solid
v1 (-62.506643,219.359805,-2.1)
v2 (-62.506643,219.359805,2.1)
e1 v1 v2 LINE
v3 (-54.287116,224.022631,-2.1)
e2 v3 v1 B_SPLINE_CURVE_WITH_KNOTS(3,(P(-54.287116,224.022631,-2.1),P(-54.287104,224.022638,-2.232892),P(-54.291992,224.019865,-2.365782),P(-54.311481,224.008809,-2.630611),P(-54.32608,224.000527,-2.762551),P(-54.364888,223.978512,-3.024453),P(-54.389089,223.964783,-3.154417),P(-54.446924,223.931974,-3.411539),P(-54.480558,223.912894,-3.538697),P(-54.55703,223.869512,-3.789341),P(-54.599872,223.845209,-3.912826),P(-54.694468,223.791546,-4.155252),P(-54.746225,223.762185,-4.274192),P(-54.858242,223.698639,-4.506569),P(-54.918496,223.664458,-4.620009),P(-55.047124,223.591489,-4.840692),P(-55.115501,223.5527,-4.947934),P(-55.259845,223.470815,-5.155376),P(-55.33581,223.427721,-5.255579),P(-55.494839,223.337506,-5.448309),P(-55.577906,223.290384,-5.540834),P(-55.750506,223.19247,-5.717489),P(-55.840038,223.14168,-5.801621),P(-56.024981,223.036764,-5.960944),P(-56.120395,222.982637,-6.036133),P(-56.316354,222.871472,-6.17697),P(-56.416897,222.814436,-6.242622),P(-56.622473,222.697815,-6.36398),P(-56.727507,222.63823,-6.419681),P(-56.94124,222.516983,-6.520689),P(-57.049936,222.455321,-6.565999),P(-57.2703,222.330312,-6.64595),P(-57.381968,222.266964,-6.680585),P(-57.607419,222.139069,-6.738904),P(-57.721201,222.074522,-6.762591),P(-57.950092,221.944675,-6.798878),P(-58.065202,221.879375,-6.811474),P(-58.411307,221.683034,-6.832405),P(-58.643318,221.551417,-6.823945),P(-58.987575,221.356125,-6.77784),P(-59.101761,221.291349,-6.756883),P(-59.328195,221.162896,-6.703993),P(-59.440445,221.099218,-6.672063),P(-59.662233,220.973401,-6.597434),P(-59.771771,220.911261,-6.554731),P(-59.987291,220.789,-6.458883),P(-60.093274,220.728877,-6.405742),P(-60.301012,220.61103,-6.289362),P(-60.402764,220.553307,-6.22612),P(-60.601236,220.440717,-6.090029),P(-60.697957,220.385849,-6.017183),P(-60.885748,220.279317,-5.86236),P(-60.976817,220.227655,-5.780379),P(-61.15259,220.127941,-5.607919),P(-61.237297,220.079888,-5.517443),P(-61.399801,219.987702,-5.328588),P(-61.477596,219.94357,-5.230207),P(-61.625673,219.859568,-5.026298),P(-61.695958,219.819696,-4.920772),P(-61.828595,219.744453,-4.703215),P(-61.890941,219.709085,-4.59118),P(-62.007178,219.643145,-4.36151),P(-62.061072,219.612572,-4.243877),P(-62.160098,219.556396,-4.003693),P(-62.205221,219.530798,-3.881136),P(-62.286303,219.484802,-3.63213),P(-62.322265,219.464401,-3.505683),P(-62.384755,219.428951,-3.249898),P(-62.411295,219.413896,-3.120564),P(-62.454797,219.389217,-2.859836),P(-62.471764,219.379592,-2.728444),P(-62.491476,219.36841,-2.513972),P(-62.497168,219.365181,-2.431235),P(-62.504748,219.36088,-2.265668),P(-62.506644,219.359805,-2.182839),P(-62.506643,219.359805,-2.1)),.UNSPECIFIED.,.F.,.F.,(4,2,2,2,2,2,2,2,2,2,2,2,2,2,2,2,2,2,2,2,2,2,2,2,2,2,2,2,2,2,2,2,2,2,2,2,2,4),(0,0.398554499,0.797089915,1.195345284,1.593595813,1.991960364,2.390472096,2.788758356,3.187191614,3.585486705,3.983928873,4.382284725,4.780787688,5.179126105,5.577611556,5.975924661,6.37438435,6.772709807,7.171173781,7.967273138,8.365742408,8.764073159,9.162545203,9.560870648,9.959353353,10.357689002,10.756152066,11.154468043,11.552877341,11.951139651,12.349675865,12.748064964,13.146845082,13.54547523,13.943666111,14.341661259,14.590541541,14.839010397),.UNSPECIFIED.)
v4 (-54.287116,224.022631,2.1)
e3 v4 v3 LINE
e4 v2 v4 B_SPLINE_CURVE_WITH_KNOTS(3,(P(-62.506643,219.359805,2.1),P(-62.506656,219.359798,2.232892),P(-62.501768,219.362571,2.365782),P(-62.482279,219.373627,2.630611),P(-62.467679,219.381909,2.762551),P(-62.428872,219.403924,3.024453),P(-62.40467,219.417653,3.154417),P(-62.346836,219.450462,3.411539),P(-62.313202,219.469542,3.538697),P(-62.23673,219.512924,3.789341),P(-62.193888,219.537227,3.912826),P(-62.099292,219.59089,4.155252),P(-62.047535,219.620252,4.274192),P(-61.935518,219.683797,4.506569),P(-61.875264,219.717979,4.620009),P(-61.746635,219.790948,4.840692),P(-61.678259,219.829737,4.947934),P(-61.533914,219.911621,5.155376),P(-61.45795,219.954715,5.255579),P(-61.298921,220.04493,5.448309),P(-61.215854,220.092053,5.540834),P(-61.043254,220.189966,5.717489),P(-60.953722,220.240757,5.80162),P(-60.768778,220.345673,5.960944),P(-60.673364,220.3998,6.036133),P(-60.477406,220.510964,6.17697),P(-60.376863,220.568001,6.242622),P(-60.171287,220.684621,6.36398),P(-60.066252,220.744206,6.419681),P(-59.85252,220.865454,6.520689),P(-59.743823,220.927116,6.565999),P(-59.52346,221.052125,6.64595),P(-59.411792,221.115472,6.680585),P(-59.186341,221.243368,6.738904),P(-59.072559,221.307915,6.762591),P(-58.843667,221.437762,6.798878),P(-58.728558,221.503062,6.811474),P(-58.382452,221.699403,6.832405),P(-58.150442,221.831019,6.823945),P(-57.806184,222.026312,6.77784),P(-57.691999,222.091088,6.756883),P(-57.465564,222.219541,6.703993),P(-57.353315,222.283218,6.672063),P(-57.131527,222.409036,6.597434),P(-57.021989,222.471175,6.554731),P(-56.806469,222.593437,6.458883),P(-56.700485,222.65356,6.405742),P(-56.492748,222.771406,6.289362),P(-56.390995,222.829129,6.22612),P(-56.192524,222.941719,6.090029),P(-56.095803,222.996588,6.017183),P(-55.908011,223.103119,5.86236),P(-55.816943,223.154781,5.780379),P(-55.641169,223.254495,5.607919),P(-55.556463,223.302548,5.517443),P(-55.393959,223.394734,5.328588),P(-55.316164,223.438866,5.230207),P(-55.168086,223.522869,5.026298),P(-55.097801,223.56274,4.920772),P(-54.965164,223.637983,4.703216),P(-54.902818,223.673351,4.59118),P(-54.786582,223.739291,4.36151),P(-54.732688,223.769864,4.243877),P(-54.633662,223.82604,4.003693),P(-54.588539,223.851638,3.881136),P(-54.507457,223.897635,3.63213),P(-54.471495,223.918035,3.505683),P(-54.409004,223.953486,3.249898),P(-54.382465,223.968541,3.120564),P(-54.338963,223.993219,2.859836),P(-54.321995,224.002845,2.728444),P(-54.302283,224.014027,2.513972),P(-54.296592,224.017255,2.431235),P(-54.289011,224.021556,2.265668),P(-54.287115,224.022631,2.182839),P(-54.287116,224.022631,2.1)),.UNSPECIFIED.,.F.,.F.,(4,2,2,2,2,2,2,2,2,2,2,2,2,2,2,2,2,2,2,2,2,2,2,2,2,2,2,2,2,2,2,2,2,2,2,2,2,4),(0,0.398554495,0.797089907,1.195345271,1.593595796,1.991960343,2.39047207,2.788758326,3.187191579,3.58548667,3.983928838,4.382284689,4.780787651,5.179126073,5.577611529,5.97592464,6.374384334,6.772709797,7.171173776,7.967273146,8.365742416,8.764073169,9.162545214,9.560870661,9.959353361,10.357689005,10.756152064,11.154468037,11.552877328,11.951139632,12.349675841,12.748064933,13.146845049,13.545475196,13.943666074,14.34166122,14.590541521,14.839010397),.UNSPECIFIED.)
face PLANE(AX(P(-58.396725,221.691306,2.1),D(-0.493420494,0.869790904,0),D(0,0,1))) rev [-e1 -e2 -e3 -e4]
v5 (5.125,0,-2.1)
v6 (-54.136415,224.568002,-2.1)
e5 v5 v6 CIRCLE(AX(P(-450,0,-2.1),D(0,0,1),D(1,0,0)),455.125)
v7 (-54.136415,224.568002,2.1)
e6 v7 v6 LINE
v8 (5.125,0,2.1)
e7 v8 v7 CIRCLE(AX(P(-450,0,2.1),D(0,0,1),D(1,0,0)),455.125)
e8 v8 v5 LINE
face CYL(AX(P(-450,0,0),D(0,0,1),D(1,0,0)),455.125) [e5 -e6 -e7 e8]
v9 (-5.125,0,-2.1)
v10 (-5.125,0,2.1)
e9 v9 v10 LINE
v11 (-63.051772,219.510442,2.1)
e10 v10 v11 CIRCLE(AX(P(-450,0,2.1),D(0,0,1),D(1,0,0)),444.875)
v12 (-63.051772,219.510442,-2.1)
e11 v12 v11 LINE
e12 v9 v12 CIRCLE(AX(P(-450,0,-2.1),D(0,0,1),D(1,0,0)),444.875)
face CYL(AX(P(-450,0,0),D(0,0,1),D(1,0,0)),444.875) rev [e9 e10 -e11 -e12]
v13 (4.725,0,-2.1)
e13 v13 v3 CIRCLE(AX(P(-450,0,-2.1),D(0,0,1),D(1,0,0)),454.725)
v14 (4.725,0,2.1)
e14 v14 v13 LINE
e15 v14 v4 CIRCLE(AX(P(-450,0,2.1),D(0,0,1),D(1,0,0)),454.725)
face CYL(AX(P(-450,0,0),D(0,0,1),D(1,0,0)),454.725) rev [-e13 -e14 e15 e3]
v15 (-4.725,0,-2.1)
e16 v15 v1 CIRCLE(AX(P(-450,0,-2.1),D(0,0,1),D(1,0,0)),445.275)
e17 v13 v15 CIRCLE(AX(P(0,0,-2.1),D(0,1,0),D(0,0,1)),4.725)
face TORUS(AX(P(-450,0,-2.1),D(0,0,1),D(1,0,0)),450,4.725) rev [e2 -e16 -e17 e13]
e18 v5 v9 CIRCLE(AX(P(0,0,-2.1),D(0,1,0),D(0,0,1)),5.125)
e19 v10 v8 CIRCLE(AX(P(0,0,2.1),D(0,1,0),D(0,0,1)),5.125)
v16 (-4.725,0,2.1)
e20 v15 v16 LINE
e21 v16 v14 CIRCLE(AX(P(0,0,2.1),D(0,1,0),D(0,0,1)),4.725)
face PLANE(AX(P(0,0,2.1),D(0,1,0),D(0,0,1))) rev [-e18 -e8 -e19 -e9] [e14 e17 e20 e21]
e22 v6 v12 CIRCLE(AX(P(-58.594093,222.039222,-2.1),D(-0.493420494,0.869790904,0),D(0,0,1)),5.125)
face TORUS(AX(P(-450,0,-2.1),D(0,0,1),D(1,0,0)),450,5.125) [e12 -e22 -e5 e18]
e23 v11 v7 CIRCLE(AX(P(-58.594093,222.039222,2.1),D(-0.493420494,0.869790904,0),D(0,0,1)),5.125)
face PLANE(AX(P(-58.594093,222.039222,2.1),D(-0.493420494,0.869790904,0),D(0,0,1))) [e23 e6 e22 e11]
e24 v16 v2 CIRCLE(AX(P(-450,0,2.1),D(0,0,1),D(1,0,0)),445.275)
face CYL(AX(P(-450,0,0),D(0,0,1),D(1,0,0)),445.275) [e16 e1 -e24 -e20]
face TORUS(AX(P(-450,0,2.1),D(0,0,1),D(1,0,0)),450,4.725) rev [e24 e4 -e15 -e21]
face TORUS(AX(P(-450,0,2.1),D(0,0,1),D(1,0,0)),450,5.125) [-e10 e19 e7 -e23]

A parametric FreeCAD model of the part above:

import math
import FreeCAD as App
import Part
import Sketcher


def faces_at(feature, points):
    """Names of the faces that lie closest to the given points."""
    faces = feature.Shape.Faces
    near = lambda p: min(range(len(faces)), key=lambda i: faces[i].distToShape(Part.Vertex(*p))[0])
    return sorted({f"Face{near(p) + 1}" for p in points})

doc = App.newDocument("Part")
body = doc.addObject("PartDesign::Body", "Body")

# Sketch on XZ plane
sketch1 = body.newObject("Sketcher::SketchObject", "Sketch")
sketch1.AttachmentSupport = (doc.getObject("XZ_Plane"), [""])
sketch1.MapMode = "FlatFace"
sketch1.addGeometry([
    Part.LineSegment(App.Vector(-5.1, -2.1, 0), App.Vector(-5.1, 2.1, 0)),
    Part.ArcOfCircle(Part.Circle(App.Vector(0, 2.1, 0), App.Vector(0, 0, 1), 5.1), math.radians(0), math.radians(180)),
    Part.LineSegment(App.Vector(5.1, 2.1, 0), App.Vector(5.1, -2.1, 0)),
    Part.ArcOfCircle(Part.Circle(App.Vector(0, -2.1, 0), App.Vector(0, 0, 1), 5.1), math.radians(180), math.radians(360)),
], False)
sketch1.addConstraint([
    Sketcher.Constraint("Tangent", 0, 2, 1, 2),
    Sketcher.Constraint("Tangent", 1, 1, 2, 1),
    Sketcher.Constraint("Tangent", 2, 2, 3, 2),
    Sketcher.Constraint("Tangent", 3, 1, 0, 1),
    Sketcher.Constraint("Vertical", 0),
    Sketcher.Constraint("Vertical", 2),
    Sketcher.Constraint("Symmetric", 1, 3, 3, 3, -1, 1),
    Sketcher.Constraint("DistanceY", 0, 1, 0, 2, 4.2),
    Sketcher.Constraint("Radius", 1, 5.125),
])

# Sketch on XY plane
sketch2 = body.newObject("Sketcher::SketchObject", "Sketch001")
sketch2.AttachmentSupport = (doc.getObject("XY_Plane"), [""])
sketch2.MapMode = "FlatFace"
sketch2.addGeometry(Part.ArcOfCircle(Part.Circle(App.Vector(-450, 0, 0), App.Vector(0, 0, 1), 450), math.radians(0), math.radians(30)), False)
sketch2.addConstraint([
    Sketcher.Constraint("Coincident", 0, 1, -1, 1),
    Sketcher.Constraint("PointOnObject", 0, 3, -1),
    Sketcher.Constraint("Radius", 0, 450.0),
    Sketcher.Constraint("DistanceX", 0, 2, -1, 1, 58.594093),
])
doc.recompute()

additivepipe = body.newObject("PartDesign::AdditivePipe", "AdditivePipe")
additivepipe.Profile = sketch1
additivepipe.Spine = (sketch2, ["Edge1"])
doc.recompute()

thickness = body.newObject("PartDesign::Thickness", "Thickness")
thickness.Base = (additivepipe, faces_at(additivepipe, [(0, 0, 0)]))
thickness.Value = 0.4
thickness.Reversed = True
thickness.Join = "Intersection"

doc.recompute()
